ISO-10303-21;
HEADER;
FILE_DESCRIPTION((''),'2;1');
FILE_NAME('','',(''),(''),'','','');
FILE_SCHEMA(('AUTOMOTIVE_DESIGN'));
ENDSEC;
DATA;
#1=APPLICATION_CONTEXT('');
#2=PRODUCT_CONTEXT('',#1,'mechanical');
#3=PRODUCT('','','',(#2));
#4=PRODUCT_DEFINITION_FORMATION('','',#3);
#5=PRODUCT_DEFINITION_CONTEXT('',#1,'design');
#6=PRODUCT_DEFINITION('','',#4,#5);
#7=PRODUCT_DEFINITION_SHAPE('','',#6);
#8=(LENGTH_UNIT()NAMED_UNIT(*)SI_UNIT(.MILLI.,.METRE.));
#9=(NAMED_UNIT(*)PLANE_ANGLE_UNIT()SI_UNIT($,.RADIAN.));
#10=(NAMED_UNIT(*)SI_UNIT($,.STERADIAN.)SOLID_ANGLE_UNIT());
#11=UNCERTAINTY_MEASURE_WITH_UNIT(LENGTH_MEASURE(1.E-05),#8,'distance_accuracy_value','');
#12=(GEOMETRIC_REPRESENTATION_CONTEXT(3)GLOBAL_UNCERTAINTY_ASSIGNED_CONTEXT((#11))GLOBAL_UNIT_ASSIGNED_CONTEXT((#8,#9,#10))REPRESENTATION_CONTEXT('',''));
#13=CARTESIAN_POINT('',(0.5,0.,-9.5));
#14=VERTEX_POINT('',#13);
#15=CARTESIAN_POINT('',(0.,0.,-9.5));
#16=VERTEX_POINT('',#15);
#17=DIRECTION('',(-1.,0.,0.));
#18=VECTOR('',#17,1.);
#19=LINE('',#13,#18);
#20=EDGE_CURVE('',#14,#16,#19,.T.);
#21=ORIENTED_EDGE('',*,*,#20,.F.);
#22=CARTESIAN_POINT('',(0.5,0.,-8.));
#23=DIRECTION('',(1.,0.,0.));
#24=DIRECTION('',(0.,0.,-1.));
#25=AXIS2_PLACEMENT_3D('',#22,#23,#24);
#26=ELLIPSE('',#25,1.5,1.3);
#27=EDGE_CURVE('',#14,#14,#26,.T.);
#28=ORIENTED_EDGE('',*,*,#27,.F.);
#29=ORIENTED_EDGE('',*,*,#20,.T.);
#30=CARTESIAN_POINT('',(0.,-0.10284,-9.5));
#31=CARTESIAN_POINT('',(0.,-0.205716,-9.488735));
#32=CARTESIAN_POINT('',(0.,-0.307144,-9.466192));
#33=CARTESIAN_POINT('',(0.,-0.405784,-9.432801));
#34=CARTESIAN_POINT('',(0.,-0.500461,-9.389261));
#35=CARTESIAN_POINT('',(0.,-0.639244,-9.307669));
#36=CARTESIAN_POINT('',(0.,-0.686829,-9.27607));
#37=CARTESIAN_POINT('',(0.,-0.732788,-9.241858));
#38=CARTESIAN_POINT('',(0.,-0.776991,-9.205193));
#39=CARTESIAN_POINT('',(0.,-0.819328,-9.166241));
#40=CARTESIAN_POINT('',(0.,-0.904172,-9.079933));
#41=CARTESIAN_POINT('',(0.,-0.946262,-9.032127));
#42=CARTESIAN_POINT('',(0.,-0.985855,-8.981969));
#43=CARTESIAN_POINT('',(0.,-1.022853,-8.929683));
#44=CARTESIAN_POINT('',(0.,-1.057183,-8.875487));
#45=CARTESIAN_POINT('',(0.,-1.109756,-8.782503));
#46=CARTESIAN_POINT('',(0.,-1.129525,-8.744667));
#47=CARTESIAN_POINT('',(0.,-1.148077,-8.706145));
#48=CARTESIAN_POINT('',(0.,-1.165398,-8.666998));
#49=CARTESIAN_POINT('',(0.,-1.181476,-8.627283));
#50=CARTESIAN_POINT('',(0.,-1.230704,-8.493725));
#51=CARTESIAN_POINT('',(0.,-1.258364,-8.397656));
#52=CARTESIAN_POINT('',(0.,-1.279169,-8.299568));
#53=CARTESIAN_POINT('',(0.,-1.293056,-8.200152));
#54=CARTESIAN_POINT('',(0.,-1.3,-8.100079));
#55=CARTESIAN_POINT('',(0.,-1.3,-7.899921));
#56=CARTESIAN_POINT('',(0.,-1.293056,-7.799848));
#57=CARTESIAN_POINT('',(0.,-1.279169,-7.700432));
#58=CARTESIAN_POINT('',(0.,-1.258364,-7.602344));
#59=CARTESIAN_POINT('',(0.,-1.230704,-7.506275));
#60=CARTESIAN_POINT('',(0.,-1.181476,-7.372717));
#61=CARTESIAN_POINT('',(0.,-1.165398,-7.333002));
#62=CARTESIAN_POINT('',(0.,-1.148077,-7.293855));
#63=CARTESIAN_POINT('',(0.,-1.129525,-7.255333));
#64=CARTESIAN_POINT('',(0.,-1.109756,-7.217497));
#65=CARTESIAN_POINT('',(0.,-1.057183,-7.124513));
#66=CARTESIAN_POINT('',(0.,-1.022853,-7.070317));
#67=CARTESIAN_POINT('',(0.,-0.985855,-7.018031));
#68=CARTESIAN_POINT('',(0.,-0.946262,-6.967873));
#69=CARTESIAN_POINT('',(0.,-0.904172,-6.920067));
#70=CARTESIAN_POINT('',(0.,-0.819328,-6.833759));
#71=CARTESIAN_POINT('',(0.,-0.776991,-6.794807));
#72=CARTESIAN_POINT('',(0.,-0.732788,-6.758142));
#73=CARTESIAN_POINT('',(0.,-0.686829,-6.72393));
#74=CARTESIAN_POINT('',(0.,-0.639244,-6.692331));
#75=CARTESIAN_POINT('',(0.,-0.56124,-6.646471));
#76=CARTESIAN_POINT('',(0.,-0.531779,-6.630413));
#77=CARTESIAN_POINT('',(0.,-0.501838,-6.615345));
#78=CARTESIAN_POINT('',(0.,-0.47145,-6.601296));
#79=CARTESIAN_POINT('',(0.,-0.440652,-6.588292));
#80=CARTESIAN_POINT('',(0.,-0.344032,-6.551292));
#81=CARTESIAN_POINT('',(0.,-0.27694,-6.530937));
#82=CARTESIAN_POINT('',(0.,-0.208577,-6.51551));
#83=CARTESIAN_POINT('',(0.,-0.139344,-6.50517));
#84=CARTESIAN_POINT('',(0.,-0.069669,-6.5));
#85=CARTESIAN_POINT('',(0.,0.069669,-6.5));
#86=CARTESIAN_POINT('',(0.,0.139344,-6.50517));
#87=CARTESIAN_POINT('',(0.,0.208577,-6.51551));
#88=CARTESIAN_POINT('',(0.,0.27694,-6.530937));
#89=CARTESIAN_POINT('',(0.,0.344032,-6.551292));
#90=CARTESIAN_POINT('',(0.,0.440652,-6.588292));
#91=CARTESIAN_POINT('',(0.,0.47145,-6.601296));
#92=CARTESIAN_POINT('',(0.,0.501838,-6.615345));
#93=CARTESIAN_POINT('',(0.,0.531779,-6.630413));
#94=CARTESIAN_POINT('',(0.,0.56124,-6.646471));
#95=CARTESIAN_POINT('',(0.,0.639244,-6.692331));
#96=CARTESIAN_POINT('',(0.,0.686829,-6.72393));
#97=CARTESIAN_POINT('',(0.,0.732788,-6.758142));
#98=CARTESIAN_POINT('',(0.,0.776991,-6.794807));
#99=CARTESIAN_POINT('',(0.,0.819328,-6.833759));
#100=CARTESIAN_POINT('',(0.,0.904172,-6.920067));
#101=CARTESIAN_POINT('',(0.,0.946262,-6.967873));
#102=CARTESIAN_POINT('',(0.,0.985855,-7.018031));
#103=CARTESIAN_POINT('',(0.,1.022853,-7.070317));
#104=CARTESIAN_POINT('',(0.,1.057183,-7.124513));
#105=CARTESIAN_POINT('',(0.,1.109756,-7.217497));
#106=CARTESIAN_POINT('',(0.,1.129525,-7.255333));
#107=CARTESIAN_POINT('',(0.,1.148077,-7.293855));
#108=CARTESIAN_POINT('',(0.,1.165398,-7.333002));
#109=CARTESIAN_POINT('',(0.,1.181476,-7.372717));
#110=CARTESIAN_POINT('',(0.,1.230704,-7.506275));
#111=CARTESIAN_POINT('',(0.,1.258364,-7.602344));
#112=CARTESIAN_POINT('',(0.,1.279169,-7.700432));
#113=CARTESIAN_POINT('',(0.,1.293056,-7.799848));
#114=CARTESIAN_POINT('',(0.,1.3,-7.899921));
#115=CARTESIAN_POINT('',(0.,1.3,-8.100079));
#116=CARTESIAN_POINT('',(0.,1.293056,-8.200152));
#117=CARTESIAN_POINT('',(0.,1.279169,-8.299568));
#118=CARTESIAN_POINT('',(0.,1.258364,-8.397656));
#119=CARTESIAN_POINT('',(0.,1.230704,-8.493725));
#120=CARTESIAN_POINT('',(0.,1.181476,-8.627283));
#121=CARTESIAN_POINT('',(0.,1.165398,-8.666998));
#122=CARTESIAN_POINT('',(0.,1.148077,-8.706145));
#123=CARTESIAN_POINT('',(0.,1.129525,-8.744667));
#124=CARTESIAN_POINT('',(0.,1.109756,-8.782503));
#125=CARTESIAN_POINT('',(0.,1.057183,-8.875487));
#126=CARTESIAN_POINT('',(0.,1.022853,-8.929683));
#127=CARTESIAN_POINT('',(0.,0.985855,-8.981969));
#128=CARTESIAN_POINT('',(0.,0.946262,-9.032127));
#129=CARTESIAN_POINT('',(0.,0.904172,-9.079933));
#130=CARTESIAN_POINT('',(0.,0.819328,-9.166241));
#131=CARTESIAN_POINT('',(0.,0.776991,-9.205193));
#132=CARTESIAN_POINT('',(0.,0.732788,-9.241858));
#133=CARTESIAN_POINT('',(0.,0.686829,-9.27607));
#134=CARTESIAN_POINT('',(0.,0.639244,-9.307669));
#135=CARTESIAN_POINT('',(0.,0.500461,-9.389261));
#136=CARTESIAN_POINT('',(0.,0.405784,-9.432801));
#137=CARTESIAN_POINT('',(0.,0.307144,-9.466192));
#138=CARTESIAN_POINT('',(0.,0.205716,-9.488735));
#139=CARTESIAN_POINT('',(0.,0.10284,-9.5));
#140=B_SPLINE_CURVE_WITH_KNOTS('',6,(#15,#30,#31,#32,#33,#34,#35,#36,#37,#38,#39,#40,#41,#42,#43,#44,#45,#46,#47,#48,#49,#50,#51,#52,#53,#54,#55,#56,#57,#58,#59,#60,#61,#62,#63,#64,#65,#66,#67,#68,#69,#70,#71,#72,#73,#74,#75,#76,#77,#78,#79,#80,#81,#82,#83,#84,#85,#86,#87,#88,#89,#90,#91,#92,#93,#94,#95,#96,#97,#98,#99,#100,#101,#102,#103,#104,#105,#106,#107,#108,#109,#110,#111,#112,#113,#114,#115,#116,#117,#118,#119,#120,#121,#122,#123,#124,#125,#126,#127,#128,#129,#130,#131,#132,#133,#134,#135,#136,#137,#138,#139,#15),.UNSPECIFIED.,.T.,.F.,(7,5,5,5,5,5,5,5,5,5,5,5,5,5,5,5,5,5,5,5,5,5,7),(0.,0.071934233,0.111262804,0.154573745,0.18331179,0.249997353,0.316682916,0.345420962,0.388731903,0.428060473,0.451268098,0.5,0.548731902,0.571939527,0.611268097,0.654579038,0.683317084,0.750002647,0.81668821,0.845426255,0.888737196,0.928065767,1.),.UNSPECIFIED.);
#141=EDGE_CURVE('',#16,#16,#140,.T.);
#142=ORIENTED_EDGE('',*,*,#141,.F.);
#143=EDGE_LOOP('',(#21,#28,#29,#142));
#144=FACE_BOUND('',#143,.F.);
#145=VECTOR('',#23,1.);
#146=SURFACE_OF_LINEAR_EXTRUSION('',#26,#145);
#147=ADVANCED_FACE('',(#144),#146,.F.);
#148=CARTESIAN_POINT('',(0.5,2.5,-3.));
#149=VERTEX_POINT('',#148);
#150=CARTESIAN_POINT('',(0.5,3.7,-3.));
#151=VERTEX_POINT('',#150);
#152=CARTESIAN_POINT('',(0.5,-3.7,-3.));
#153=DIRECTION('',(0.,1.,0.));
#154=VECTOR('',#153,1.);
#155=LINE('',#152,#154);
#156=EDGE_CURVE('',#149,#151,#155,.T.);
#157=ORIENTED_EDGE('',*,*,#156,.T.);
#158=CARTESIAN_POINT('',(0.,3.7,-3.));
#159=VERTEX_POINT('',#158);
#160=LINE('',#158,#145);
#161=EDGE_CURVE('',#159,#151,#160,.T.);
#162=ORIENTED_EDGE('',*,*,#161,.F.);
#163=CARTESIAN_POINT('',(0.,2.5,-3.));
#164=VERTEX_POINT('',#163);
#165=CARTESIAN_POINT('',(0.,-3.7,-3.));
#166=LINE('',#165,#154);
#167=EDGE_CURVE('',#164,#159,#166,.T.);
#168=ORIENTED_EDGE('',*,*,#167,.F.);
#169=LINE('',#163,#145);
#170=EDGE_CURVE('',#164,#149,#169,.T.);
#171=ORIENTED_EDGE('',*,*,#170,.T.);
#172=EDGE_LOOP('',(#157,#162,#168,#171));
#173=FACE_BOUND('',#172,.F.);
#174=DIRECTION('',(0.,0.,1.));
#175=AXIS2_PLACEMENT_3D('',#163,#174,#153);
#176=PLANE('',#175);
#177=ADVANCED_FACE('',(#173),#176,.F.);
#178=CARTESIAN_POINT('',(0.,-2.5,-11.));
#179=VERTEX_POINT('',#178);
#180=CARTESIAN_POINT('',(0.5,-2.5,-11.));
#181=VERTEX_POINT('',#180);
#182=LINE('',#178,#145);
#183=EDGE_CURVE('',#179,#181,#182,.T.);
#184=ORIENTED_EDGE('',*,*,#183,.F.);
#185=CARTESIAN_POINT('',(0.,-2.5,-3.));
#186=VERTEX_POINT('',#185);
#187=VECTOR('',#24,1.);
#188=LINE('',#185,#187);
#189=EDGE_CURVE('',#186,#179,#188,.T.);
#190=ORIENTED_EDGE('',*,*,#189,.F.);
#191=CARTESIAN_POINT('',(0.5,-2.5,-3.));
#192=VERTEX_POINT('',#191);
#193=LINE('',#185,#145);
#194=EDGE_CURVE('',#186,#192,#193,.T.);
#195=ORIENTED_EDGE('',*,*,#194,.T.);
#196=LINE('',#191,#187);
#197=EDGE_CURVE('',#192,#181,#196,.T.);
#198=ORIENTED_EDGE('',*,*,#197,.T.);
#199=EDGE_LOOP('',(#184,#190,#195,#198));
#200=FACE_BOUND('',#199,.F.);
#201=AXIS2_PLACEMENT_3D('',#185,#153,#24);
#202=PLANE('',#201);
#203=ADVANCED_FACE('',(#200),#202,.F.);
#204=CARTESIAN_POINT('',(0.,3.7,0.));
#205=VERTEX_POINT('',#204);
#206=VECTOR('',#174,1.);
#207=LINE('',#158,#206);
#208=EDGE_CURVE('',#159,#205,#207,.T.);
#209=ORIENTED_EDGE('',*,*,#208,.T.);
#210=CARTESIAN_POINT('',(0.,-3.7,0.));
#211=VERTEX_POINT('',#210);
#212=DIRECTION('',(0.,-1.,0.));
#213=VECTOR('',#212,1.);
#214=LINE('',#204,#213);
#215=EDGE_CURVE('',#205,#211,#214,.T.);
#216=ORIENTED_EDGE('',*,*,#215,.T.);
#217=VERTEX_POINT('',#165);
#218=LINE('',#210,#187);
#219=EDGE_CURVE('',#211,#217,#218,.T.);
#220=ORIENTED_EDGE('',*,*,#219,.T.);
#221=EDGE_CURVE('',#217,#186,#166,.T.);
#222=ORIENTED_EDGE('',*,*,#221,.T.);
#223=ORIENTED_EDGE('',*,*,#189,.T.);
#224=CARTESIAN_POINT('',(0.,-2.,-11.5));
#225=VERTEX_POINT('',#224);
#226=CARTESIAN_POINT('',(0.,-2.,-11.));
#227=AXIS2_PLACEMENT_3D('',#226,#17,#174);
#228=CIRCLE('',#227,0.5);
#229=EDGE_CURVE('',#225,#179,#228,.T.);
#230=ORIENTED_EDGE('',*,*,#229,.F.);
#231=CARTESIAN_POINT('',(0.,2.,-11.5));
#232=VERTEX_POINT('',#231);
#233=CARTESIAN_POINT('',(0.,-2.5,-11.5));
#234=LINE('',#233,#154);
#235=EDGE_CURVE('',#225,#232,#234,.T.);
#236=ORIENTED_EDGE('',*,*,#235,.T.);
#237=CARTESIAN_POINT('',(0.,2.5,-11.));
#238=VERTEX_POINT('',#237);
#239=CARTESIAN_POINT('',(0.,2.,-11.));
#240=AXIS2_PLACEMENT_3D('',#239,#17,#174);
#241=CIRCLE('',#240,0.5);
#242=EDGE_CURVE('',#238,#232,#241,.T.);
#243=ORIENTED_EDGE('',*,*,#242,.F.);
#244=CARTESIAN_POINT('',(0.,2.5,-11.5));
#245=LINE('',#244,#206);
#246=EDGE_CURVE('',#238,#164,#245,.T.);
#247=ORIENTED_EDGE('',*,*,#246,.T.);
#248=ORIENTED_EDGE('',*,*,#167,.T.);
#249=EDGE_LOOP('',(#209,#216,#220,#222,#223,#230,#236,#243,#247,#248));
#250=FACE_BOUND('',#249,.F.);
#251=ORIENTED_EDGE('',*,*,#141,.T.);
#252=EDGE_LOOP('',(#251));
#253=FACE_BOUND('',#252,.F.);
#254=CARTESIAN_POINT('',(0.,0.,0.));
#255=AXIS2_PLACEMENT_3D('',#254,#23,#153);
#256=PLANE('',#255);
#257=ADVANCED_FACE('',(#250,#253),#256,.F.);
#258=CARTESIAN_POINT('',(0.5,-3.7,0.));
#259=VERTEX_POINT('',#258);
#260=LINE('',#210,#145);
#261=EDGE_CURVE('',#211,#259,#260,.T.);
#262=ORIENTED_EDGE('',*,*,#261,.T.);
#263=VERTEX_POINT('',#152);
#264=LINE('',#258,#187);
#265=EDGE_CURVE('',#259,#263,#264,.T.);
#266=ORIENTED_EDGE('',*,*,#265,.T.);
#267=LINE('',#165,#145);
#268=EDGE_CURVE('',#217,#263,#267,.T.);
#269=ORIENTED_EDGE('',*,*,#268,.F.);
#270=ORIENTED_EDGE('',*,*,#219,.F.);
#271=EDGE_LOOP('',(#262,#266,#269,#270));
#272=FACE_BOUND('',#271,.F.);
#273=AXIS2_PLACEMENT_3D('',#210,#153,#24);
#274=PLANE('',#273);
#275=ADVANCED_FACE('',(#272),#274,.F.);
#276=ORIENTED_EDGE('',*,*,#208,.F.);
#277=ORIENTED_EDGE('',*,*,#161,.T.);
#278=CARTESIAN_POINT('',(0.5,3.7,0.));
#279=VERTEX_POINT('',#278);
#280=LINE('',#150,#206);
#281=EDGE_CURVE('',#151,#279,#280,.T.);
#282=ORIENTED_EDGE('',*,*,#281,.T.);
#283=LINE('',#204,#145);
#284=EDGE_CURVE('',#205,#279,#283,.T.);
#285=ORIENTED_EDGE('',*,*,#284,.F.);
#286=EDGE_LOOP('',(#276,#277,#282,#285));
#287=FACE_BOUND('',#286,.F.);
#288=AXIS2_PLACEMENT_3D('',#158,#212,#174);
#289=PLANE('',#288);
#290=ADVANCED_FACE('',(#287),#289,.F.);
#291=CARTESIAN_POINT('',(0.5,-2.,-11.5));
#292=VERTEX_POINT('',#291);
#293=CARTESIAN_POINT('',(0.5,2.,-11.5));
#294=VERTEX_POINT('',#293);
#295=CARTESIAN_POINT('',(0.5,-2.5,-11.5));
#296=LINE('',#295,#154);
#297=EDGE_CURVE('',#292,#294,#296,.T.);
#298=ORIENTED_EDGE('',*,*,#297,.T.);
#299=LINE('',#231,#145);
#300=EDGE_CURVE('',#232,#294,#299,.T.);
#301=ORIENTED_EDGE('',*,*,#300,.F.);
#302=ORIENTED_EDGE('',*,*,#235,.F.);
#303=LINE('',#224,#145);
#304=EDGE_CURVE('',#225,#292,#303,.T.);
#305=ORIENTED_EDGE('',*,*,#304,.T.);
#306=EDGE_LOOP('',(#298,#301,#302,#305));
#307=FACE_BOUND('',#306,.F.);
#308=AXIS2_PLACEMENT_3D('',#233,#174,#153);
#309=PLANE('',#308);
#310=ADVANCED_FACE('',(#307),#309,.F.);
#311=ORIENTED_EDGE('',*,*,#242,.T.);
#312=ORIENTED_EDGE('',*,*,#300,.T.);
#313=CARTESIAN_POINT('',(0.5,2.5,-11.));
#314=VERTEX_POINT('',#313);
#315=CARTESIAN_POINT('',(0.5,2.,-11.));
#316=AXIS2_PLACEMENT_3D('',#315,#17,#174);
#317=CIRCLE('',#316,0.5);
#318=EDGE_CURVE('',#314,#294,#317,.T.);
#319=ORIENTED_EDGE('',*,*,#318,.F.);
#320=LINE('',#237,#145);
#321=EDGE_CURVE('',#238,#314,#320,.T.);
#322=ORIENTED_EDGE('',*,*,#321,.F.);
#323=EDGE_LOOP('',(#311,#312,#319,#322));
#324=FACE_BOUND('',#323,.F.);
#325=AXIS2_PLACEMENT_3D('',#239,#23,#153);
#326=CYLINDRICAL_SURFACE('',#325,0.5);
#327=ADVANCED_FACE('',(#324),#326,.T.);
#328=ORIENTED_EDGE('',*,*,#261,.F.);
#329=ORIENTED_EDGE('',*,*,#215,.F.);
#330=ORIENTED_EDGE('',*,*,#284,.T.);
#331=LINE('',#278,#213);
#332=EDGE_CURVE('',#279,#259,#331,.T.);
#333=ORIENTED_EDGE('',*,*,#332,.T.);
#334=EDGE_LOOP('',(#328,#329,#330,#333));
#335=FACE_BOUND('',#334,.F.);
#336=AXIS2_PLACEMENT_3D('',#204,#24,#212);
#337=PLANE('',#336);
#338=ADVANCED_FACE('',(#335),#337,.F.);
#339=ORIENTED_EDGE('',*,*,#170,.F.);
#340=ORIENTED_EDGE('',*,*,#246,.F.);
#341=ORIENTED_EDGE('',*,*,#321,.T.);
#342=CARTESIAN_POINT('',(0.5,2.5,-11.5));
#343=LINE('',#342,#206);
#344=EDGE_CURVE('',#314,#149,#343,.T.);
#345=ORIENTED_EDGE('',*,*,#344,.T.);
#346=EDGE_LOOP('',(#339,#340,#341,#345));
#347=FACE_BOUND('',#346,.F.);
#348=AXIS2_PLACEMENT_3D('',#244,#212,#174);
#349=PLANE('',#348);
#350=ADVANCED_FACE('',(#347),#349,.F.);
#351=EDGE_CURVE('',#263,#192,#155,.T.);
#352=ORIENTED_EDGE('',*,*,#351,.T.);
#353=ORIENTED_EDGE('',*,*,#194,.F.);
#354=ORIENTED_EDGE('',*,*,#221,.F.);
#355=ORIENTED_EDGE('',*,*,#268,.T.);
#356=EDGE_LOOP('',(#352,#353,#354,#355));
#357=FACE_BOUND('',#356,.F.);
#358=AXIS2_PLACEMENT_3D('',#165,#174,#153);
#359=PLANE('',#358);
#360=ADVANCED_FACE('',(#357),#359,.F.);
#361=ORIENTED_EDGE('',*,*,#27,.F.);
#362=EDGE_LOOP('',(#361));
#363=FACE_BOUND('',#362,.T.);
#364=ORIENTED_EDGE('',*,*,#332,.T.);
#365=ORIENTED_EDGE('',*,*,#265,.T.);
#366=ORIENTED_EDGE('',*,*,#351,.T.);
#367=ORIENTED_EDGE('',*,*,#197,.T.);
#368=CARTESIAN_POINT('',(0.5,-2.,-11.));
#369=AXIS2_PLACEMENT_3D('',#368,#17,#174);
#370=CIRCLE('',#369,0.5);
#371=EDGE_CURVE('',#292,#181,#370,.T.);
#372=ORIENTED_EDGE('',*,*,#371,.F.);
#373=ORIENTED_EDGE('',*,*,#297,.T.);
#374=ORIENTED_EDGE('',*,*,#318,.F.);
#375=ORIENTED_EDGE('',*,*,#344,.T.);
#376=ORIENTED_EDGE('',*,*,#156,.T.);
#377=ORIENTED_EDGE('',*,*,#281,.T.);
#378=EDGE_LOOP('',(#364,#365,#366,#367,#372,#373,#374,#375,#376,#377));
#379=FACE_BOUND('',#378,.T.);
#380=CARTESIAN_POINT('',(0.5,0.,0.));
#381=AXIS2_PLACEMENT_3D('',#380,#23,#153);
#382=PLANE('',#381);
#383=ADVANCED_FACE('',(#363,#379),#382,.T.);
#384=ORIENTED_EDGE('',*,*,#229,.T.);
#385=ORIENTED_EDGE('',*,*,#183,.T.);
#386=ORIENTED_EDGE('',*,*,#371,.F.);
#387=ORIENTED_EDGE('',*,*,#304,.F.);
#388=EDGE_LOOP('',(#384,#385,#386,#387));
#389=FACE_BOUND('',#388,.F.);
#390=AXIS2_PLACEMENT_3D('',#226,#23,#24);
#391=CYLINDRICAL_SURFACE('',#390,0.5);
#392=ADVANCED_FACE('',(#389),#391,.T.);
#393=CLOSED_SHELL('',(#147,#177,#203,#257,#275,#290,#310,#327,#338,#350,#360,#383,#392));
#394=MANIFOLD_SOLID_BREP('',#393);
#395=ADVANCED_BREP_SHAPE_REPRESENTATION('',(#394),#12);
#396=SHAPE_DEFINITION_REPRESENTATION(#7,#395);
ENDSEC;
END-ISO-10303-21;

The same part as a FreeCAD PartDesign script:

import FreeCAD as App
import Part
import Sketcher
from FreeCAD import Vector


def edges_at(feature, points):
    """Names of the edges that pass closest to the given points."""
    edges = feature.Shape.Edges
    near = lambda p: min(range(len(edges)), key=lambda i: edges[i].distToShape(Part.Vertex(*p))[0])
    return sorted({f"Edge{near(p) + 1}" for p in points})

doc = App.newDocument("Part")
params = doc.addObject("Spreadsheet::Sheet", "Params")
for row, (alias, value) in enumerate([
    ("sketch1_width", "5 mm"),
    ("sketch1_height", "3 mm"),
    ("sketch1_width2", "7.4 mm"),
    ("sketch1_height2", "8.5 mm"),
    ("pad1_length", "0.5 mm"),
    ("fillet_radius", "0.5 mm"),
], start=1):
    params.set(f"A{row}", alias)
    params.set(f"B{row}", "=" + value)
    params.setAlias(f"B{row}", alias)

body = doc.addObject("PartDesign::Body", "Body")

# Sketch on YZ plane
sketch1 = doc.addObject("Sketcher::SketchObject", "Sketch")
body.addObject(sketch1)
sketch1.AttachmentSupport = (doc.YZ_Plane, [""])
sketch1.MapMode = "FlatFace"
sketch1.addGeometry([
    Part.LineSegment(Vector(3.7, -3, 0), Vector(3.7, 0, 0)),  # 0
    Part.LineSegment(Vector(3.7, 0, 0), Vector(-3.7, 0, 0)),  # 1
    Part.LineSegment(Vector(-3.7, 0, 0), Vector(-3.7, -3, 0)),  # 2
    Part.LineSegment(Vector(-3.7, -3, 0), Vector(-2.5, -3, 0)),  # 3
    Part.LineSegment(Vector(-2.5, -3, 0), Vector(-2.5, -11.5, 0)),  # 4
    Part.LineSegment(Vector(-2.5, -11.5, 0), Vector(2.5, -11.5, 0)),  # 5
    Part.LineSegment(Vector(2.5, -11.5, 0), Vector(2.5, -3, 0)),  # 6
    Part.LineSegment(Vector(2.5, -3, 0), Vector(3.7, -3, 0)),  # 7
], False)
sketch1.addConstraint([
    Sketcher.Constraint("Coincident", 0, 2, 1, 1),
    Sketcher.Constraint("Coincident", 1, 2, 2, 1),
    Sketcher.Constraint("Coincident", 2, 2, 3, 1),
    Sketcher.Constraint("Coincident", 3, 2, 4, 1),
    Sketcher.Constraint("Coincident", 4, 2, 5, 1),
    Sketcher.Constraint("Coincident", 5, 2, 6, 1),
    Sketcher.Constraint("Coincident", 6, 2, 7, 1),
    Sketcher.Constraint("Coincident", 7, 2, 0, 1),
    Sketcher.Constraint("Vertical", 0),
    Sketcher.Constraint("Horizontal", 1),
    Sketcher.Constraint("Vertical", 2),
    Sketcher.Constraint("Horizontal", 3),
    Sketcher.Constraint("Vertical", 4),
    Sketcher.Constraint("Horizontal", 5),
    Sketcher.Constraint("Vertical", 6),
    Sketcher.Constraint("Horizontal", 7),
    Sketcher.Constraint("Symmetric", 0, 2, 1, 2, -1, 1),
    Sketcher.Constraint("Symmetric", 3, 2, 6, 2, -2),
    Sketcher.Constraint("DistanceX", 5, 1, 5, 2, 5.0),
    Sketcher.Constraint("DistanceY", 0, 1, 0, 2, 3.0),
    Sketcher.Constraint("DistanceX", 1, 2, 1, 1, 7.4),
    Sketcher.Constraint("DistanceY", 4, 2, 4, 1, 8.5),
])
sketch1.setExpression("Constraints[18]", "Params.sketch1_width")
sketch1.setExpression("Constraints[19]", "Params.sketch1_height")
sketch1.setExpression("Constraints[20]", "Params.sketch1_width2")
sketch1.setExpression("Constraints[21]", "Params.sketch1_height2")
pad1 = doc.addObject("PartDesign::Pad", "Pad")
body.addObject(pad1)
pad1.Profile = sketch1
pad1.setExpression("Length", "Params.pad1_length")

# Sketch on YZ plane
sketch2 = doc.addObject("Sketcher::SketchObject", "Sketch001")
body.addObject(sketch2)
sketch2.AttachmentSupport = (doc.YZ_Plane, [""])
sketch2.MapMode = "FlatFace"
sketch2.AttachmentOffset = App.Placement(Vector(0, 0, 0.5), App.Rotation())
sketch2.addGeometry(Part.Ellipse(Vector(0, -9.5, 0), Vector(1.3, -8, 0), Vector(0, -8, 0)), False)
sketch2.addConstraint(Sketcher.Constraint("Block", 0))
pocket1 = doc.addObject("PartDesign::Pocket", "Pocket")
body.addObject(pocket1)
pocket1.Profile = sketch2
pocket1.Type = "ThroughAll"
doc.recompute()

fillet = doc.addObject("PartDesign::Fillet", "Fillet")
body.addObject(fillet)
fillet.Base = (pocket1, edges_at(pocket1, [(0.25, -2.5, -11.5), (0.25, 2.5, -11.5)]))
fillet.setExpression("Radius", "Params.fillet_radius")

doc.recompute()
